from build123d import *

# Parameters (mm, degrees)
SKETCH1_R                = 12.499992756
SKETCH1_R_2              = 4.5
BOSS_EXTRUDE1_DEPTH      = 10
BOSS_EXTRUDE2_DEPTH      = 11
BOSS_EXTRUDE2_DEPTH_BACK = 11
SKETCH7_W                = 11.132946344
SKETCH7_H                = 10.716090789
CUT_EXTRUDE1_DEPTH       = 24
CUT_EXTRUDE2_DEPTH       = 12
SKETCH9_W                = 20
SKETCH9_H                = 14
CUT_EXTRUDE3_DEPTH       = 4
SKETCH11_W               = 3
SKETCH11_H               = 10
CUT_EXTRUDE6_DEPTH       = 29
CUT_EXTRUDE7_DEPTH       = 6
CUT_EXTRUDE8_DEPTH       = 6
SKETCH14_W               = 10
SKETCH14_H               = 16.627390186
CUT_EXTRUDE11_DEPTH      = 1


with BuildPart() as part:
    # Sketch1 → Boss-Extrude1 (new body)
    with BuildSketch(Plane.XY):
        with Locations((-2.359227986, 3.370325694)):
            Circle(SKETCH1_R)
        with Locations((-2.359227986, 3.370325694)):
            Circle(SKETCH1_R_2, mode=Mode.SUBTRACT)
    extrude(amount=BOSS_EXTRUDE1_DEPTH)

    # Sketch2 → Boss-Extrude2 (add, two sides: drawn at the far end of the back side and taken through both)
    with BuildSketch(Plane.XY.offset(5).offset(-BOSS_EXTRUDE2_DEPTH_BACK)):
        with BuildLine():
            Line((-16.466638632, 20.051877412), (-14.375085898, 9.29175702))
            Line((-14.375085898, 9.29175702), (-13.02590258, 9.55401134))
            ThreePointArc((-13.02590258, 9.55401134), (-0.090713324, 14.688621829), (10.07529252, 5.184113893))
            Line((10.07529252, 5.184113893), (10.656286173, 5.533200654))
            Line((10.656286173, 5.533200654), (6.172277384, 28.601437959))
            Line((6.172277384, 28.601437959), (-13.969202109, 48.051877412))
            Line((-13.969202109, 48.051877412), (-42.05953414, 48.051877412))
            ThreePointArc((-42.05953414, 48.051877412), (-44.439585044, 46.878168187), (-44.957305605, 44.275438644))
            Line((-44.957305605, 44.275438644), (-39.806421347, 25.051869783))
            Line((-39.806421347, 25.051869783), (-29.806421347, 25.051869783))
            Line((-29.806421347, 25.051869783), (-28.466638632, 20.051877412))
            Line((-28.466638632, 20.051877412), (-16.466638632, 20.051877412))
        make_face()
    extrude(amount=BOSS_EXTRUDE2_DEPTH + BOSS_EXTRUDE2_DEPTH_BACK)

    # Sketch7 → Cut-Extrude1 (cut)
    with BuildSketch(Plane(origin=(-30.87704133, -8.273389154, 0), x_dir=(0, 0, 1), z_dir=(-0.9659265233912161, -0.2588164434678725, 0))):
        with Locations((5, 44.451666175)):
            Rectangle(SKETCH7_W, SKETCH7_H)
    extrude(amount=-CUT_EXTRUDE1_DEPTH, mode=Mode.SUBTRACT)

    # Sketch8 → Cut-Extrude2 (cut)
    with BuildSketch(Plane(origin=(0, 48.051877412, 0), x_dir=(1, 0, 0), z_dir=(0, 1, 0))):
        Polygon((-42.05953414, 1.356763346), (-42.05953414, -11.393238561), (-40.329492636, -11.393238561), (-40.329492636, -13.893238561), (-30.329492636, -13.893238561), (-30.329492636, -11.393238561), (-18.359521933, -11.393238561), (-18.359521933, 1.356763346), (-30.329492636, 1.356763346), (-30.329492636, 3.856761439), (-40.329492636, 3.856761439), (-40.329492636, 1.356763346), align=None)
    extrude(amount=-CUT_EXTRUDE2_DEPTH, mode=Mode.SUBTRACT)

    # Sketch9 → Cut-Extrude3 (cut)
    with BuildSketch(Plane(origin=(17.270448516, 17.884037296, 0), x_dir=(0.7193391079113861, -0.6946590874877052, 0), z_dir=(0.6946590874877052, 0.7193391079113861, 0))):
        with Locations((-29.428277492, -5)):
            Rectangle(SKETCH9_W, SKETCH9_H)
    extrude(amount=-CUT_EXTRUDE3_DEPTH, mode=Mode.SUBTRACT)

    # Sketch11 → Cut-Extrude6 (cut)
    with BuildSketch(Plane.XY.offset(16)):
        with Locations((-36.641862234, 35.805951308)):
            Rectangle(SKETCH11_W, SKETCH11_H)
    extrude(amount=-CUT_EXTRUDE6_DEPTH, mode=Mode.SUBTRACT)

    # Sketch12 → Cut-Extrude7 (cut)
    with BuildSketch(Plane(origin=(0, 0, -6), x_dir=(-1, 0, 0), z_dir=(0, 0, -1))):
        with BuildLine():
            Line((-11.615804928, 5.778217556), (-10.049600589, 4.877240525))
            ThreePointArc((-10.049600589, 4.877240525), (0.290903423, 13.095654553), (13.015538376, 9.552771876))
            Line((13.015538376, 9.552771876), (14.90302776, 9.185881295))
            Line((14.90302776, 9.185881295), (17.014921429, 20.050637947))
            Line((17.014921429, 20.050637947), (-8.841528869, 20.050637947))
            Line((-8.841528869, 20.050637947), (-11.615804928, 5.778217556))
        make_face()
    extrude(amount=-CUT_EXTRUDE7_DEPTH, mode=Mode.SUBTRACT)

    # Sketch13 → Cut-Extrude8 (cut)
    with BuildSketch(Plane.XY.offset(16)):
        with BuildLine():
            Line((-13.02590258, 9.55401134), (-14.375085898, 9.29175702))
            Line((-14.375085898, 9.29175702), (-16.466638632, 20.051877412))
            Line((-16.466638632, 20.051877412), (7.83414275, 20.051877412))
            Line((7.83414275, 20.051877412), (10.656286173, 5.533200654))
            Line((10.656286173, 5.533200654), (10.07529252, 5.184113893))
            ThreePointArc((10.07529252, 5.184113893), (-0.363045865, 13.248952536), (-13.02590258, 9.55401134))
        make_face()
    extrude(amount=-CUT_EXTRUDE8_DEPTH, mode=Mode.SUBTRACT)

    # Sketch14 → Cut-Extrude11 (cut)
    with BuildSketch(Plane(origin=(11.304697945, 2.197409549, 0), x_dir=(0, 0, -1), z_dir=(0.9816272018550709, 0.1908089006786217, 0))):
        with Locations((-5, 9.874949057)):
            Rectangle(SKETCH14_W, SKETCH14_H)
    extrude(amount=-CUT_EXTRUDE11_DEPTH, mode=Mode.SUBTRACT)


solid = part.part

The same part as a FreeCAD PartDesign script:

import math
import FreeCAD as App
import Part
import Sketcher
Q = App.Units.Quantity


def add_polygon(sketch, points):
    """Adds a closed chain of lines whose ends are joined by coincident constraints."""
    first, n = sketch.GeometryCount, len(points)
    for a, b in zip(points, points[1:] + points[:1]):
        sketch.addGeometry(Part.LineSegment(App.Vector(*a, 0), App.Vector(*b, 0)), False)
    for i in range(n):
        sketch.addConstraint(Sketcher.Constraint("Coincident", first + i, 2, first + (i + 1) % n, 1))

doc = App.newDocument("Part")
params = doc.addObject("Spreadsheet::Sheet", "Params")
for row, (alias, value) in enumerate([
    ("sketch1_diameter", "9 mm"),
    ("pad1_length", "10 mm"),
    ("sketch2_width", "10 mm"),
    ("sketch2_width2", "12 mm"),
    ("sketch2_length", "23.499998 mm"),
    ("pad2_length", "11 mm"),
    ("pad2_length2", "11 mm"),
    ("pocket1_length", "24 mm"),
    ("sketch4_width", "10 mm"),
    ("sketch4_height", "2.5 mm"),
    ("sketch4_height2", "12.750002 mm"),
    ("pocket2_length", "12 mm"),
    ("sketch5_width", "20 mm"),
    ("sketch5_height", "14 mm"),
    ("pocket3_length", "4 mm"),
    ("sketch6_width", "3 mm"),
    ("sketch6_height", "10 mm"),
    ("pocket4_length", "29 mm"),
    ("pocket5_length", "6 mm"),
    ("pocket6_length", "6 mm"),
    ("sketch9_width", "10 mm"),
    ("pocket7_length", "1 mm"),
], start=1):
    params.set(f"A{row}", alias)
    params.set(f"B{row}", "=" + value)
    params.setAlias(f"B{row}", alias)

body = doc.addObject("PartDesign::Body", "Body")

# Sketch on XY plane
sketch1 = body.newObject("Sketcher::SketchObject", "Sketch")
sketch1.AttachmentSupport = (doc.getObject("XY_Plane"), [""])
sketch1.MapMode = "FlatFace"
sketch1.addGeometry(Part.Circle(App.Vector(-2.4, 3.4, 0), App.Vector(0, 0, 1), 12.5), False)
sketch1.addGeometry(Part.Circle(App.Vector(-2.4, 3.4, 0), App.Vector(0, 0, 1), 4.5), False)
sketch1.addConstraint(Sketcher.Constraint("Coincident", 1, 3, 0, 3))
sketch1.addConstraint(Sketcher.Constraint("Diameter", 1, Q("9 mm")))
sketch1.addConstraint(Sketcher.Constraint("Diameter", 0, Q("24.999986 mm")))
sketch1.addConstraint(Sketcher.Constraint("DistanceX", 0, 3, -1, 1, Q("2.359228 mm")))
sketch1.addConstraint(Sketcher.Constraint("DistanceY", -1, 1, 0, 3, Q("3.370326 mm")))
sketch1.setExpression("Constraints[1]", "Params.sketch1_diameter")
pad1 = body.newObject("PartDesign::Pad", "Pad")
pad1.Profile = sketch1
pad1.setExpression("Length", "Params.pad1_length")

# Sketch on XY plane
sketch2 = body.newObject("Sketcher::SketchObject", "Sketch001")
sketch2.AttachmentSupport = (doc.getObject("XY_Plane"), [""])
sketch2.MapMode = "FlatFace"
sketch2.AttachmentOffset = App.Placement(App.Vector(0, 0, 5), App.Rotation())
sketch2.addGeometry(Part.LineSegment(App.Vector(-16.5, 20.1, 0), App.Vector(-14.4, 9.3, 0)), False)
sketch2.addGeometry(Part.LineSegment(App.Vector(-14.4, 9.3, 0), App.Vector(-13, 9.6, 0)), False)
sketch2.addGeometry(Part.ArcOfCircle(Part.Circle(App.Vector(-2.5, 1.9, 0), App.Vector(0, 0, 1), 13), math.radians(15), math.radians(144)), False)
sketch2.addGeometry(Part.LineSegment(App.Vector(10.1, 5.2, 0), App.Vector(10.7, 5.5, 0)), False)
sketch2.addGeometry(Part.LineSegment(App.Vector(10.7, 5.5, 0), App.Vector(6.2, 28.6, 0)), False)
sketch2.addGeometry(Part.LineSegment(App.Vector(6.2, 28.6, 0), App.Vector(-14, 48.1, 0)), False)
sketch2.addGeometry(Part.LineSegment(App.Vector(-14, 48.1, 0), App.Vector(-42.1, 48.1, 0)), False)
sketch2.addGeometry(Part.ArcOfCircle(Part.Circle(App.Vector(-42.1, 45.1, 0), App.Vector(0, 0, 1), 3), math.radians(90), math.radians(195)), False)
sketch2.addGeometry(Part.LineSegment(App.Vector(-45, 44.3, 0), App.Vector(-39.8, 25.1, 0)), False)
sketch2.addGeometry(Part.LineSegment(App.Vector(-39.8, 25.1, 0), App.Vector(-29.8, 25.1, 0)), False)
sketch2.addGeometry(Part.LineSegment(App.Vector(-29.8, 25.1, 0), App.Vector(-28.5, 20.1, 0)), False)
sketch2.addGeometry(Part.LineSegment(App.Vector(-28.5, 20.1, 0), App.Vector(-16.5, 20.1, 0)), False)
sketch2.addConstraint(Sketcher.Constraint("Coincident", 0, 2, 1, 1))
sketch2.addConstraint(Sketcher.Constraint("Coincident", 1, 2, 2, 2))
sketch2.addConstraint(Sketcher.Constraint("Coincident", 2, 1, 3, 1))
sketch2.addConstraint(Sketcher.Constraint("Coincident", 3, 2, 4, 1))
sketch2.addConstraint(Sketcher.Constraint("Coincident", 4, 2, 5, 1))
sketch2.addConstraint(Sketcher.Constraint("Coincident", 5, 2, 6, 1))
sketch2.addConstraint(Sketcher.Constraint("Tangent", 6, 2, 7, 1))
sketch2.addConstraint(Sketcher.Constraint("Tangent", 7, 2, 8, 1))
sketch2.addConstraint(Sketcher.Constraint("Coincident", 8, 2, 9, 1))
sketch2.addConstraint(Sketcher.Constraint("Coincident", 9, 2, 10, 1))
sketch2.addConstraint(Sketcher.Constraint("Coincident", 10, 2, 11, 1))
sketch2.addConstraint(Sketcher.Constraint("Coincident", 11, 2, 0, 1))
sketch2.addConstraint(Sketcher.Constraint("Horizontal", 6))
sketch2.addConstraint(Sketcher.Constraint("Horizontal", 9))
sketch2.addConstraint(Sketcher.Constraint("Horizontal", 11))
sketch2.addConstraint(Sketcher.Constraint("Perpendicular", 0, 1))
sketch2.addConstraint(Sketcher.Constraint("Perpendicular", 1, 4))
sketch2.addConstraint(Sketcher.Constraint("DistanceX", 9, 1, 9, 2, Q("10 mm")))
sketch2.addConstraint(Sketcher.Constraint("DistanceX", 11, 1, 11, 2, Q("12 mm")))
sketch2.addConstraint(Sketcher.Constraint("Angle", 0, Q("-79.000014 deg")))
sketch2.addConstraint(Sketcher.Constraint("Distance", 4, Q("23.499998 mm")))
sketch2.addConstraint(Sketcher.Constraint("Radius", 2, Q("12.99999 mm")))
sketch2.addConstraint(Sketcher.Constraint("Radius", 7, Q("2.999992 mm")))
sketch2.addConstraint(Sketcher.Constraint("Distance", 3, Q("0.677802 mm")))
sketch2.addConstraint(Sketcher.Constraint("DistanceY", -1, 1, 3, 2, Q("5.533201 mm")))
sketch2.addConstraint(Sketcher.Constraint("DistanceY", 2, 3, 0, 2, Q("7.376599 mm")))
sketch2.addConstraint(Sketcher.Constraint("DistanceX", 5, 2, 1, 2, Q("0.9433 mm")))
sketch2.addConstraint(Sketcher.Constraint("Distance", 5, Q("27.999978 mm")))
sketch2.addConstraint(Sketcher.Constraint("Distance", 8, Q("19.901689 mm")))
sketch2.addConstraint(Sketcher.Constraint("DistanceX", 6, 2, 6, 1, Q("28.090332 mm")))
sketch2.addConstraint(Sketcher.Constraint("DistanceY", -1, 1, 1, 2, Q("9.554011 mm")))
sketch2.addConstraint(Sketcher.Constraint("DistanceY", -1, 1, 7, 2, Q("44.275439 mm")))
sketch2.addConstraint(Sketcher.Constraint("DistanceX", 8, 2, -1, 1, Q("39.806421 mm")))
sketch2.addConstraint(Sketcher.Constraint("DistanceY", -1, 1, 8, 2, Q("25.05187 mm")))
sketch2.addConstraint(Sketcher.Constraint("DistanceX", 10, 2, -1, 1, Q("28.466639 mm")))
sketch2.addConstraint(Sketcher.Constraint("DistanceX", 7, 3, 2, 3, Q("39.552551 mm")))
sketch2.setExpression("Constraints[17]", "Params.sketch2_width")
sketch2.setExpression("Constraints[18]", "Params.sketch2_width2")
sketch2.setExpression("Constraints[20]", "Params.sketch2_length")
pad2 = body.newObject("PartDesign::Pad", "Pad001")
pad2.Profile = sketch2
pad2.Type = "TwoLengths"
pad2.setExpression("Length", "Params.pad2_length")
pad2.setExpression("Length2", "Params.pad2_length2")

# Sketch on an angled plane
sketch3 = body.newObject("Sketcher::SketchObject", "Sketch002")
sketch3.Placement = App.Placement(App.Vector(-30.877041, -8.273389, 0), App.Rotation(App.Vector(0, 0, 1), App.Vector(-0.258816443, 0.965926523, 0), App.Vector(-0.965926523, -0.258816443, 0), "ZXY"))
add_polygon(sketch3, [(-1, 50), (-1, 39), (11, 39), (11, 50)])  # lines 0-3
sketch3.addConstraint(Sketcher.Constraint("Vertical", 0))
sketch3.addConstraint(Sketcher.Constraint("Horizontal", 1))
sketch3.addConstraint(Sketcher.Constraint("Vertical", 2))
sketch3.addConstraint(Sketcher.Constraint("Horizontal", 3))
sketch3.addConstraint(Sketcher.Constraint("DistanceY", 0, 2, 0, 1, Q("10.716091 mm")))
sketch3.addConstraint(Sketcher.Constraint("DistanceX", 1, 1, 1, 2, Q("11.132946 mm")))
sketch3.addConstraint(Sketcher.Constraint("DistanceY", -1, 1, 0, 2, Q("39.093621 mm")))
sketch3.addConstraint(Sketcher.Constraint("DistanceX", 0, 2, -1, 1, Q("0.566473 mm")))
pocket1 = body.newObject("PartDesign::Pocket", "Pocket")
pocket1.Profile = sketch3
pocket1.setExpression("Length", "Params.pocket1_length")

# Sketch on XZ plane
sketch4 = body.newObject("Sketcher::SketchObject", "Sketch003")
sketch4.AttachmentSupport = (doc.getObject("XZ_Plane"), [""])
sketch4.MapMode = "FlatFace"
sketch4.AttachmentOffset = App.Placement(App.Vector(0, 0, -48.051877), App.Rotation())
add_polygon(sketch4, [(-42.1, -1.4), (-42.1, 11.4), (-40.3, 11.4), (-40.3, 13.9), (-30.3, 13.9), (-30.3, 11.4), (-18.4, 11.4), (-18.4, -1.4), (-30.3, -1.4), (-30.3, -3.9), (-40.3, -3.9), (-40.3, -1.4)])  # lines 0-11
sketch4.addConstraint(Sketcher.Constraint("Vertical", 0))
sketch4.addConstraint(Sketcher.Constraint("Horizontal", 1))
sketch4.addConstraint(Sketcher.Constraint("Vertical", 2))
sketch4.addConstraint(Sketcher.Constraint("Horizontal", 3))
sketch4.addConstraint(Sketcher.Constraint("Vertical", 4))
sketch4.addConstraint(Sketcher.Constraint("Horizontal", 5))
sketch4.addConstraint(Sketcher.Constraint("Vertical", 6))
sketch4.addConstraint(Sketcher.Constraint("Horizontal", 7))
sketch4.addConstraint(Sketcher.Constraint("Vertical", 8))
sketch4.addConstraint(Sketcher.Constraint("Horizontal", 9))
sketch4.addConstraint(Sketcher.Constraint("Vertical", 10))
sketch4.addConstraint(Sketcher.Constraint("Horizontal", 11))
sketch4.addConstraint(Sketcher.Constraint("Horizontal", 1, 2, 4, 2))
sketch4.addConstraint(Sketcher.Constraint("Horizontal", 7, 2, 10, 2))
sketch4.addConstraint(Sketcher.Constraint("Vertical", 4, 2, 7, 2))
sketch4.addConstraint(Sketcher.Constraint("Vertical", 2, 2, 9, 2))
sketch4.addConstraint(Sketcher.Constraint("Equal", 4, 8))
sketch4.addConstraint(Sketcher.Constraint("DistanceX", 3, 1, 3, 2, Q("10 mm")))
sketch4.addConstraint(Sketcher.Constraint("DistanceY", 2, 1, 2, 2, Q("2.5 mm")))
sketch4.addConstraint(Sketcher.Constraint("DistanceY", 0, 1, 0, 2, Q("12.750002 mm")))
sketch4.addConstraint(Sketcher.Constraint("DistanceX", 1, 1, 1, 2, Q("1.730042 mm")))
sketch4.addConstraint(Sketcher.Constraint("DistanceX", 5, 1, 5, 2, Q("11.969971 mm")))
sketch4.addConstraint(Sketcher.Constraint("DistanceY", -1, 1, 0, 2, Q("11.393239 mm")))
sketch4.addConstraint(Sketcher.Constraint("DistanceX", 5, 2, -1, 1, Q("18.359522 mm")))
sketch4.setExpression("Constraints[29]", "Params.sketch4_width")
sketch4.setExpression("Constraints[30]", "Params.sketch4_height")
sketch4.setExpression("Constraints[31]", "Params.sketch4_height2")
pocket2 = body.newObject("PartDesign::Pocket", "Pocket001")
pocket2.Profile = sketch4
pocket2.setExpression("Length", "Params.pocket2_length")
pocket2.Reversed = True

# Sketch on an angled plane
sketch5 = body.newObject("Sketcher::SketchObject", "Sketch004")
sketch5.Placement = App.Placement(App.Vector(17.270449, 17.884037, 0), App.Rotation(App.Vector(0.719339108, -0.694659087, 0), App.Vector(0, 0, -0.999999999), App.Vector(0.694659087, 0.719339108, 0), "ZXY"))
add_polygon(sketch5, [(-39, 2), (-39, -12), (-19, -12), (-19, 2)])  # lines 0-3
sketch5.addConstraint(Sketcher.Constraint("Vertical", 0))
sketch5.addConstraint(Sketcher.Constraint("Horizontal", 1))
sketch5.addConstraint(Sketcher.Constraint("Vertical", 2))
sketch5.addConstraint(Sketcher.Constraint("Horizontal", 3))
sketch5.addConstraint(Sketcher.Constraint("DistanceX", 1, 1, 1, 2, Q("20 mm")))
sketch5.addConstraint(Sketcher.Constraint("DistanceY", 0, 2, 0, 1, Q("14 mm")))
sketch5.addConstraint(Sketcher.Constraint("DistanceY", 0, 2, -1, 1, Q("12 mm")))
sketch5.addConstraint(Sketcher.Constraint("DistanceX", 0, 2, -1, 1, Q("39.428277 mm")))
sketch5.setExpression("Constraints[8]", "Params.sketch5_width")
sketch5.setExpression("Constraints[9]", "Params.sketch5_height")
pocket3 = body.newObject("PartDesign::Pocket", "Pocket002")
pocket3.Profile = sketch5
pocket3.setExpression("Length", "Params.pocket3_length")

# Sketch on XY plane
sketch6 = body.newObject("Sketcher::SketchObject", "Sketch005")
sketch6.AttachmentSupport = (doc.getObject("XY_Plane"), [""])
sketch6.MapMode = "FlatFace"
sketch6.AttachmentOffset = App.Placement(App.Vector(0, 0, 16), App.Rotation())
add_polygon(sketch6, [(-38.1, 40.8), (-38.1, 30.8), (-35.1, 30.8), (-35.1, 40.8)])  # lines 0-3
sketch6.addConstraint(Sketcher.Constraint("Vertical", 0))
sketch6.addConstraint(Sketcher.Constraint("Horizontal", 1))
sketch6.addConstraint(Sketcher.Constraint("Vertical", 2))
sketch6.addConstraint(Sketcher.Constraint("Horizontal", 3))
sketch6.addConstraint(Sketcher.Constraint("DistanceX", 1, 1, 1, 2, Q("3 mm")))
sketch6.addConstraint(Sketcher.Constraint("DistanceY", 0, 2, 0, 1, Q("10 mm")))
sketch6.addConstraint(Sketcher.Constraint("DistanceY", -1, 1, 0, 2, Q("30.805951 mm")))
sketch6.addConstraint(Sketcher.Constraint("DistanceX", 0, 2, -1, 1, Q("38.141862 mm")))
sketch6.setExpression("Constraints[8]", "Params.sketch6_width")
sketch6.setExpression("Constraints[9]", "Params.sketch6_height")
pocket4 = body.newObject("PartDesign::Pocket", "Pocket003")
pocket4.Profile = sketch6
pocket4.setExpression("Length", "Params.pocket4_length")

# Sketch on XY plane
sketch7 = body.newObject("Sketcher::SketchObject", "Sketch006")
sketch7.AttachmentSupport = (doc.getObject("XY_Plane"), [""])
sketch7.MapMode = "FlatFace"
sketch7.AttachmentOffset = App.Placement(App.Vector(0, 0, -6), App.Rotation())
sketch7.addGeometry(Part.LineSegment(App.Vector(11.6, 5.8, 0), App.Vector(10, 4.9, 0)), False)
sketch7.addGeometry(Part.ArcOfCircle(Part.Circle(App.Vector(-3.2, -1.2, 0), App.Vector(0, 0, 1), 14.5), math.radians(25), math.radians(133)), False)
sketch7.addGeometry(Part.LineSegment(App.Vector(-13, 9.6, 0), App.Vector(-14.9, 9.2, 0)), False)
sketch7.addGeometry(Part.LineSegment(App.Vector(-14.9, 9.2, 0), App.Vector(-17, 20.1, 0)), False)
sketch7.addGeometry(Part.LineSegment(App.Vector(-17, 20.1, 0), App.Vector(8.8, 20.1, 0)), False)
sketch7.addGeometry(Part.LineSegment(App.Vector(8.8, 20.1, 0), App.Vector(11.6, 5.8, 0)), False)
sketch7.addConstraint(Sketcher.Constraint("Coincident", 0, 2, 1, 1))
sketch7.addConstraint(Sketcher.Constraint("Coincident", 1, 2, 2, 1))
sketch7.addConstraint(Sketcher.Constraint("Coincident", 2, 2, 3, 1))
sketch7.addConstraint(Sketcher.Constraint("Coincident", 3, 2, 4, 1))
sketch7.addConstraint(Sketcher.Constraint("Coincident", 4, 2, 5, 1))
sketch7.addConstraint(Sketcher.Constraint("Coincident", 5, 2, 0, 1))
sketch7.addConstraint(Sketcher.Constraint("Horizontal", 4))
sketch7.addConstraint(Sketcher.Constraint("Perpendicular", 2, 3))
sketch7.addConstraint(Sketcher.Constraint("Parallel", 3, 5))
sketch7.addConstraint(Sketcher.Constraint("Angle", 2, Q("-169.000006 deg")))
sketch7.addConstraint(Sketcher.Constraint("Radius", 1, Q("14.538414 mm")))
sketch7.addConstraint(Sketcher.Constraint("DistanceX", 4, 1, 4, 2, Q("25.85645 mm")))
sketch7.addConstraint(Sketcher.Constraint("DistanceX", -1, 1, 0, 2, Q("10.049601 mm")))
sketch7.addConstraint(Sketcher.Constraint("DistanceY", 1, 3, 0, 2, Q("6.030201 mm")))
sketch7.addConstraint(Sketcher.Constraint("DistanceX", 1, 2, 1, 3, Q("9.8363 mm")))
sketch7.addConstraint(Sketcher.Constraint("Distance", 3, Q("11.068109 mm")))
sketch7.addConstraint(Sketcher.Constraint("DistanceY", 1, 3, -1, 1, Q("1.15296 mm")))
sketch7.addConstraint(Sketcher.Constraint("DistanceY", -1, 1, 2, 2, Q("9.185881 mm")))
sketch7.addConstraint(Sketcher.Constraint("DistanceY", 5, 2, 4, 2, Q("14.27242 mm")))
pocket5 = body.newObject("PartDesign::Pocket", "Pocket004")
pocket5.Profile = sketch7
pocket5.setExpression("Length", "Params.pocket5_length")
pocket5.Reversed = True

# Sketch on XY plane
sketch8 = body.newObject("Sketcher::SketchObject", "Sketch007")
sketch8.AttachmentSupport = (doc.getObject("XY_Plane"), [""])
sketch8.MapMode = "FlatFace"
sketch8.AttachmentOffset = App.Placement(App.Vector(0, 0, 16), App.Rotation())
sketch8.addGeometry(Part.LineSegment(App.Vector(-14.4, 9.3, 0), App.Vector(-13, 9.6, 0)), False)
sketch8.addGeometry(Part.ArcOfCircle(Part.Circle(App.Vector(-3.1, -1, 0), App.Vector(0, 0, 1), 14.5), math.radians(25), math.radians(133)), False)
sketch8.addGeometry(Part.LineSegment(App.Vector(10.1, 5.2, 0), App.Vector(10.7, 5.5, 0)), False)
sketch8.addGeometry(Part.LineSegment(App.Vector(10.7, 5.5, 0), App.Vector(7.8, 20.1, 0)), False)
sketch8.addGeometry(Part.LineSegment(App.Vector(7.8, 20.1, 0), App.Vector(-16.5, 20.1, 0)), False)
sketch8.addGeometry(Part.LineSegment(App.Vector(-16.5, 20.1, 0), App.Vector(-14.4, 9.3, 0)), False)
sketch8.addConstraint(Sketcher.Constraint("Coincident", 0, 2, 1, 2))
sketch8.addConstraint(Sketcher.Constraint("Coincident", 1, 1, 2, 1))
sketch8.addConstraint(Sketcher.Constraint("Coincident", 2, 2, 3, 1))
sketch8.addConstraint(Sketcher.Constraint("Coincident", 3, 2, 4, 1))
sketch8.addConstraint(Sketcher.Constraint("Coincident", 4, 2, 5, 1))
sketch8.addConstraint(Sketcher.Constraint("Coincident", 5, 2, 0, 1))
sketch8.addConstraint(Sketcher.Constraint("Horizontal", 4))
sketch8.addConstraint(Sketcher.Constraint("Perpendicular", 0, 3))
sketch8.addConstraint(Sketcher.Constraint("Parallel", 3, 5))
sketch8.addConstraint(Sketcher.Constraint("Angle", 0, Q("10.999986 deg")))
sketch8.addConstraint(Sketcher.Constraint("Radius", 1, Q("14.538414 mm")))
sketch8.addConstraint(Sketcher.Constraint("Distance", 2, Q("0.677802 mm")))
sketch8.addConstraint(Sketcher.Constraint("DistanceX", 4, 2, 4, 1, Q("24.300781 mm")))
sketch8.addConstraint(Sketcher.Constraint("DistanceY", -1, 1, 2, 2, Q("5.533201 mm")))
sketch8.addConstraint(Sketcher.Constraint("DistanceX", 1, 3, 3, 2, Q("10.899401 mm")))
sketch8.addConstraint(Sketcher.Constraint("Distance", 3, Q("14.790418 mm")))
sketch8.addConstraint(Sketcher.Constraint("DistanceX", 1, 3, -1, 1, Q("3.065258 mm")))
sketch8.addConstraint(Sketcher.Constraint("DistanceY", 1, 3, -1, 1, Q("1.036129 mm")))
sketch8.addConstraint(Sketcher.Constraint("DistanceY", -1, 1, 0, 2, Q("9.554011 mm")))
pocket6 = body.newObject("PartDesign::Pocket", "Pocket005")
pocket6.Profile = sketch8
pocket6.setExpression("Length", "Params.pocket6_length")

# Sketch on an angled plane
sketch9 = body.newObject("Sketcher::SketchObject", "Sketch008")
sketch9.Placement = App.Placement(App.Vector(11.304698, 2.19741, 0), App.Rotation(App.Vector(0, 0, -1), App.Vector(-0.190808901, 0.981627202, 0), App.Vector(0.981627202, 0.190808901, 0), "ZXY"))
add_polygon(sketch9, [(-10, 18), (-10, 2), (0, 2), (0, 18)])  # lines 0-3
sketch9.addConstraint(Sketcher.Constraint("Vertical", 0))
sketch9.addConstraint(Sketcher.Constraint("Horizontal", 1))
sketch9.addConstraint(Sketcher.Constraint("Vertical", 2))
sketch9.addConstraint(Sketcher.Constraint("Horizontal", 3))
sketch9.addConstraint(Sketcher.Constraint("PointOnObject", 1, 2, -2))
sketch9.addConstraint(Sketcher.Constraint("DistanceX", 1, 1, 1, 2, Q("10 mm")))
sketch9.addConstraint(Sketcher.Constraint("DistanceY", 0, 2, 0, 1, Q("16.62739 mm")))
sketch9.addConstraint(Sketcher.Constraint("DistanceY", -1, 1, 0, 2, Q("1.561254 mm")))
sketch9.setExpression("Constraints[9]", "Params.sketch9_width")
pocket7 = body.newObject("PartDesign::Pocket", "Pocket006")
pocket7.Profile = sketch9
pocket7.setExpression("Length", "Params.pocket7_length")

doc.recompute()
